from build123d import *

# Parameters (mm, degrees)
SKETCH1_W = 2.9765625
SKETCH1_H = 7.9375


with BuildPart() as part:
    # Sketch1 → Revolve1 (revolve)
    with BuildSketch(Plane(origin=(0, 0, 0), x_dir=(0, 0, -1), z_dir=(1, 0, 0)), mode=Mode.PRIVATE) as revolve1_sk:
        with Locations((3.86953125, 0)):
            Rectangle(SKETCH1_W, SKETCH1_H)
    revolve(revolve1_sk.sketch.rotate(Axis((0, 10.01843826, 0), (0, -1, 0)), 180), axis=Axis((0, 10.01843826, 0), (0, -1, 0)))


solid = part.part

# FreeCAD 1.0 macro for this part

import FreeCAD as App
import Part
import Sketcher
Q = App.Units.Quantity

doc = App.newDocument("Part")
body = doc.addObject("PartDesign::Body", "Body")

sketch1 = body.newObject("Sketcher::SketchObject", "Sketch")
sketch1.AttachmentSupport = (doc.getObject("YZ_Plane"), [""])
sketch1.MapMode = "FlatFace"
sketch1.addGeometry([
    Part.LineSegment(App.Vector(4, -2.4, 0), App.Vector(-4, -2.4, 0)),
    Part.LineSegment(App.Vector(-4, -2.4, 0), App.Vector(-4, -5.4, 0)),
    Part.LineSegment(App.Vector(-4, -5.4, 0), App.Vector(4, -5.4, 0)),
    Part.LineSegment(App.Vector(4, -5.4, 0), App.Vector(4, -2.4, 0)),
], False)
sketch1.addConstraint([
    Sketcher.Constraint("Coincident", 0, 2, 1, 1),
    Sketcher.Constraint("Coincident", 1, 2, 2, 1),
    Sketcher.Constraint("Coincident", 2, 2, 3, 1),
    Sketcher.Constraint("Coincident", 3, 2, 0, 1),
    Sketcher.Constraint("Horizontal", 0),
    Sketcher.Constraint("Vertical", 1),
    Sketcher.Constraint("Horizontal", 2),
    Sketcher.Constraint("Vertical", 3),
    Sketcher.Constraint("DistanceX", 0, 2, 0, 1, Q("0.3125 in")),
    Sketcher.Constraint("DistanceX", 0, 2, -1, 1, Q("0.15625 in")),
    Sketcher.Constraint("DistanceY", 0, 2, -1, 1, Q("0.09375 in")),
    Sketcher.Constraint("DistanceY", 1, 2, 1, 1, Q("2.976562 mm")),
])
revolution = body.newObject("PartDesign::Revolution", "Revolution")
revolution.Profile = sketch1
revolution.ReferenceAxis = (sketch1, ["H_Axis"])
revolution.Angle = 360

doc.recompute()
